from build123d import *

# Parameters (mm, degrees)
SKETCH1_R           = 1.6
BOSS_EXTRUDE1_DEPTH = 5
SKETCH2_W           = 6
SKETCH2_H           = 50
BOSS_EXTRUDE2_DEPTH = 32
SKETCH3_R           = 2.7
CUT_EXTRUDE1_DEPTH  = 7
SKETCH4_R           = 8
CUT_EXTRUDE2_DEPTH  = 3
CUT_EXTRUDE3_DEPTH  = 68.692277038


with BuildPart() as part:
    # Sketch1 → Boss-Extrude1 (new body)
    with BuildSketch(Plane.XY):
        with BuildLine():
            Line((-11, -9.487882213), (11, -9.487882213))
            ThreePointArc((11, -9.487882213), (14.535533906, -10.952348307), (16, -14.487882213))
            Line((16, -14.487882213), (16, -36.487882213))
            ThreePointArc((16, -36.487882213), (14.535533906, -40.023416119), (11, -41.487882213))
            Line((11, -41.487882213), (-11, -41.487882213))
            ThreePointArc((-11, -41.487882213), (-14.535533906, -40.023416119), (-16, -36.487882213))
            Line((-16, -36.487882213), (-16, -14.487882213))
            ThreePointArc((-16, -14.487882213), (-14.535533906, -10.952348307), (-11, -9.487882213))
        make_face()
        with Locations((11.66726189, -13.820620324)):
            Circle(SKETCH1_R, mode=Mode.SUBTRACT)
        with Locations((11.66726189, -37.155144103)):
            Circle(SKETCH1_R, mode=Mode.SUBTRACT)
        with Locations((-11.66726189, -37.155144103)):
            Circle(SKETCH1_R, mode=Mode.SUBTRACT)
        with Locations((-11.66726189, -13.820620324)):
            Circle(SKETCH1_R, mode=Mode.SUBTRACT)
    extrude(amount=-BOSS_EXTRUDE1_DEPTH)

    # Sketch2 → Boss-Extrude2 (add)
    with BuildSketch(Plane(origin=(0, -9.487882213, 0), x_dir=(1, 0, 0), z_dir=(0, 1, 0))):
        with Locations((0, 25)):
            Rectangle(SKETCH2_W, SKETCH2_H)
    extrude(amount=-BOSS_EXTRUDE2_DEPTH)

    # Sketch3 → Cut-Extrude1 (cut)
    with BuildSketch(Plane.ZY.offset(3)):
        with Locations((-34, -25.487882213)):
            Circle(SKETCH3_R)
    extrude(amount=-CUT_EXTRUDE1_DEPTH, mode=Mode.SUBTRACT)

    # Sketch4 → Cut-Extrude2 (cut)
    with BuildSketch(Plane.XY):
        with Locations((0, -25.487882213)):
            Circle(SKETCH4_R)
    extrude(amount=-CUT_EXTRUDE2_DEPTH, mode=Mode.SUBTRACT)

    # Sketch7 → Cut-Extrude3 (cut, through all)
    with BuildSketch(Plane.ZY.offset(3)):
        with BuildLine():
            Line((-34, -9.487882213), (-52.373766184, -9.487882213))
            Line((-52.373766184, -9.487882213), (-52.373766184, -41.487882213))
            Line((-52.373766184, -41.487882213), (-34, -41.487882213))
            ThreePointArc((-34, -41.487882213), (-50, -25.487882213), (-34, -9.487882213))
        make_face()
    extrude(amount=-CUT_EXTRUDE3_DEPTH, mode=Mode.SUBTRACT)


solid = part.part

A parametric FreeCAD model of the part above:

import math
import FreeCAD as App
import Part
import Sketcher

V = App.Vector
Q = App.Units.Quantity


def add_polygon(sketch, points):
    """Adds a closed chain of lines whose ends are joined by coincident constraints."""
    first, n = sketch.GeometryCount, len(points)
    for a, b in zip(points, points[1:] + points[:1]):
        sketch.addGeometry(Part.LineSegment(App.Vector(*a, 0), App.Vector(*b, 0)), False)
    for i in range(n):
        sketch.addConstraint(Sketcher.Constraint("Coincident", first + i, 2, first + (i + 1) % n, 1))

doc = App.newDocument("Part")
body = doc.addObject("PartDesign::Body", "Body")

# Sketch on XY plane
sketch1 = doc.addObject("Sketcher::SketchObject", "Sketch")
body.addObject(sketch1)
sketch1.AttachmentSupport = (doc.XY_Plane, [""])
sketch1.MapMode = "FlatFace"
sketch1.addGeometry(Part.LineSegment(V(11, -9.487882, 0), V(-11, -9.487882, 0)), False)
sketch1.addGeometry(Part.ArcOfCircle(Part.Circle(V(-11, -14.487882, 0), V(0, 0, 1), 5), math.radians(90), math.radians(180)), False)
sketch1.addGeometry(Part.LineSegment(V(-16, -14.487882, 0), V(-16, -36.487882, 0)), False)
sketch1.addGeometry(Part.ArcOfCircle(Part.Circle(V(-11, -36.487882, 0), V(0, 0, 1), 5), math.radians(180), math.radians(270)), False)
sketch1.addGeometry(Part.LineSegment(V(-11, -41.487882, 0), V(11, -41.487882, 0)), False)
sketch1.addGeometry(Part.ArcOfCircle(Part.Circle(V(11, -36.487882, 0), V(0, 0, 1), 5), math.radians(-90), math.radians(0)), False)
sketch1.addGeometry(Part.LineSegment(V(16, -36.487882, 0), V(16, -14.487882, 0)), False)
sketch1.addGeometry(Part.ArcOfCircle(Part.Circle(V(11, -14.487882, 0), V(0, 0, 1), 5), math.radians(0), math.radians(90)), False)
sketch1.addGeometry(Part.Circle(V(11.667262, -37.155144, 0), V(0, 0, 1), 1.6), False)
sketch1.addGeometry(Part.Circle(V(-11.667262, -37.155144, 0), V(0, 0, 1), 1.6), False)
sketch1.addGeometry(Part.Circle(V(11.667262, -13.82062, 0), V(0, 0, 1), 1.6), False)
sketch1.addGeometry(Part.Circle(V(-11.667262, -13.82062, 0), V(0, 0, 1), 1.6), False)
sketch1.addConstraint(Sketcher.Constraint("Tangent", 0, 2, 1, 1))
sketch1.addConstraint(Sketcher.Constraint("Tangent", 1, 2, 2, 1))
sketch1.addConstraint(Sketcher.Constraint("Tangent", 2, 2, 3, 1))
sketch1.addConstraint(Sketcher.Constraint("Tangent", 3, 2, 4, 1))
sketch1.addConstraint(Sketcher.Constraint("Tangent", 4, 2, 5, 1))
sketch1.addConstraint(Sketcher.Constraint("Tangent", 5, 2, 6, 1))
sketch1.addConstraint(Sketcher.Constraint("Tangent", 6, 2, 7, 1))
sketch1.addConstraint(Sketcher.Constraint("Tangent", 7, 2, 0, 1))
sketch1.addConstraint(Sketcher.Constraint("Horizontal", 0))
sketch1.addConstraint(Sketcher.Constraint("Vertical", 2))
sketch1.addConstraint(Sketcher.Constraint("Horizontal", 4))
sketch1.addConstraint(Sketcher.Constraint("Vertical", 6))
sketch1.addConstraint(Sketcher.Constraint("Equal", 1, 3))
sketch1.addConstraint(Sketcher.Constraint("Equal", 3, 5))
sketch1.addConstraint(Sketcher.Constraint("Equal", 5, 7))
sketch1.addConstraint(Sketcher.Constraint("Equal", 8, 9))
sketch1.addConstraint(Sketcher.Constraint("Equal", 9, 10))
sketch1.addConstraint(Sketcher.Constraint("Equal", 10, 11))
sketch1.addConstraint(Sketcher.Constraint("Symmetric", 8, 3, 9, 3, -2))
sketch1.addConstraint(Sketcher.Constraint("Symmetric", 10, 3, 11, 3, -2))
sketch1.addConstraint(Sketcher.Constraint("Vertical", 8, 3, 10, 3))
sketch1.addConstraint(Sketcher.Constraint("Equal", 4, 2))
sketch1.addConstraint(Sketcher.Constraint("Radius", 1, Q("5 mm")))
sketch1.addConstraint(Sketcher.Constraint("Diameter", 8, Q("3.2 mm")))
sketch1.addConstraint(Sketcher.Constraint("DistanceX", 0, 2, 0, 1, Q("22 mm")))
sketch1.addConstraint(Sketcher.Constraint("DistanceX", 1, 3, -1, 1, Q("11 mm")))
sketch1.addConstraint(Sketcher.Constraint("DistanceX", -1, 1, 8, 3, Q("11.667262 mm")))
sketch1.addConstraint(Sketcher.Constraint("DistanceY", 10, 3, -1, 1, Q("13.82062 mm")))
sketch1.addConstraint(Sketcher.Constraint("DistanceY", 8, 3, 5, 3, Q("0.667262 mm")))
sketch1.addConstraint(Sketcher.Constraint("DistanceY", 7, 3, 10, 3, Q("0.667262 mm")))
pad1 = doc.addObject("PartDesign::Pad", "Pad")
body.addObject(pad1)
pad1.Profile = sketch1
pad1.Length = 5
pad1.Reversed = True

# Sketch on XZ plane
sketch2 = doc.addObject("Sketcher::SketchObject", "Sketch001")
body.addObject(sketch2)
sketch2.AttachmentSupport = (doc.XZ_Plane, [""])
sketch2.MapMode = "FlatFace"
sketch2.AttachmentOffset = App.Placement(V(0, 0, 9.487882), App.Rotation())
add_polygon(sketch2, [(-3, -50), (-3, 0), (3, 0), (3, -50)])  # lines 0-3
sketch2.addConstraint(Sketcher.Constraint("Vertical", 0))
sketch2.addConstraint(Sketcher.Constraint("Horizontal", 1))
sketch2.addConstraint(Sketcher.Constraint("Vertical", 2))
sketch2.addConstraint(Sketcher.Constraint("Horizontal", 3))
sketch2.addConstraint(Sketcher.Constraint("Symmetric", 0, 2, 1, 2, -1, 1))
sketch2.addConstraint(Sketcher.Constraint("DistanceX", 1, 1, 1, 2, Q("6 mm")))
sketch2.addConstraint(Sketcher.Constraint("DistanceY", 0, 1, 0, 2, Q("50 mm")))
pad2 = doc.addObject("PartDesign::Pad", "Pad001")
body.addObject(pad2)
pad2.Profile = sketch2
pad2.Length = 32

# Sketch on YZ plane
sketch3 = doc.addObject("Sketcher::SketchObject", "Sketch002")
body.addObject(sketch3)
sketch3.AttachmentSupport = (doc.YZ_Plane, [""])
sketch3.MapMode = "FlatFace"
sketch3.AttachmentOffset = App.Placement(V(0, 0, -3), App.Rotation())
sketch3.addGeometry(Part.Circle(V(-25.487882, -34, 0), V(0, 0, 1), 2.7), False)
sketch3.addConstraint(Sketcher.Constraint("Diameter", 0, Q("5.4 mm")))
sketch3.addConstraint(Sketcher.Constraint("DistanceY", 0, 3, -1, 1, Q("34 mm")))
sketch3.addConstraint(Sketcher.Constraint("DistanceX", 0, 3, -1, 1, Q("25.487882 mm")))
pocket1 = doc.addObject("PartDesign::Pocket", "Pocket")
body.addObject(pocket1)
pocket1.Profile = sketch3
pocket1.Length = 7
pocket1.Reversed = True

# Sketch on XY plane
sketch4 = doc.addObject("Sketcher::SketchObject", "Sketch003")
body.addObject(sketch4)
sketch4.AttachmentSupport = (doc.XY_Plane, [""])
sketch4.MapMode = "FlatFace"
sketch4.addGeometry(Part.Circle(V(0, -25.487882, 0), V(0, 0, 1), 8), False)
sketch4.addConstraint(Sketcher.Constraint("PointOnObject", 0, 3, -2))
sketch4.addConstraint(Sketcher.Constraint("Diameter", 0, Q("16 mm")))
sketch4.addConstraint(Sketcher.Constraint("DistanceY", 0, 3, -1, 1, Q("25.487882 mm")))
pocket2 = doc.addObject("PartDesign::Pocket", "Pocket001")
body.addObject(pocket2)
pocket2.Profile = sketch4
pocket2.Length = 3

# Sketch on YZ plane
sketch5 = doc.addObject("Sketcher::SketchObject", "Sketch004")
body.addObject(sketch5)
sketch5.AttachmentSupport = (doc.YZ_Plane, [""])
sketch5.MapMode = "FlatFace"
sketch5.AttachmentOffset = App.Placement(V(0, 0, -3), App.Rotation())
sketch5.addGeometry(Part.LineSegment(V(-9.487882, -34, 0), V(-9.487882, -52.373766, 0)), False)
sketch5.addGeometry(Part.LineSegment(V(-9.487882, -52.373766, 0), V(-41.487882, -52.373766, 0)), False)
sketch5.addGeometry(Part.LineSegment(V(-41.487882, -52.373766, 0), V(-41.487882, -34, 0)), False)
sketch5.addGeometry(Part.ArcOfCircle(Part.Circle(V(-25.487882, -34, 0), V(0, 0, 1), 16), math.radians(180), math.radians(360)), False)
sketch5.addConstraint(Sketcher.Constraint("Coincident", 0, 2, 1, 1))
sketch5.addConstraint(Sketcher.Constraint("Coincident", 1, 2, 2, 1))
sketch5.addConstraint(Sketcher.Constraint("Tangent", 2, 2, 3, 1))
sketch5.addConstraint(Sketcher.Constraint("Tangent", 3, 2, 0, 1))
sketch5.addConstraint(Sketcher.Constraint("Vertical", 0))
sketch5.addConstraint(Sketcher.Constraint("Horizontal", 1))
sketch5.addConstraint(Sketcher.Constraint("Vertical", 2))
sketch5.addConstraint(Sketcher.Constraint("Radius", 3, Q("16 mm")))
sketch5.addConstraint(Sketcher.Constraint("DistanceY", 3, 3, -1, 1, Q("34 mm")))
sketch5.addConstraint(Sketcher.Constraint("DistanceY", 0, 2, 0, 1, Q("18.373766 mm")))
sketch5.addConstraint(Sketcher.Constraint("DistanceX", 3, 3, -1, 1, Q("25.487882 mm")))
pocket3 = doc.addObject("PartDesign::Pocket", "Pocket002")
body.addObject(pocket3)
pocket3.Profile = sketch5
pocket3.Type = "ThroughAll"
pocket3.Reversed = True

doc.recompute()
